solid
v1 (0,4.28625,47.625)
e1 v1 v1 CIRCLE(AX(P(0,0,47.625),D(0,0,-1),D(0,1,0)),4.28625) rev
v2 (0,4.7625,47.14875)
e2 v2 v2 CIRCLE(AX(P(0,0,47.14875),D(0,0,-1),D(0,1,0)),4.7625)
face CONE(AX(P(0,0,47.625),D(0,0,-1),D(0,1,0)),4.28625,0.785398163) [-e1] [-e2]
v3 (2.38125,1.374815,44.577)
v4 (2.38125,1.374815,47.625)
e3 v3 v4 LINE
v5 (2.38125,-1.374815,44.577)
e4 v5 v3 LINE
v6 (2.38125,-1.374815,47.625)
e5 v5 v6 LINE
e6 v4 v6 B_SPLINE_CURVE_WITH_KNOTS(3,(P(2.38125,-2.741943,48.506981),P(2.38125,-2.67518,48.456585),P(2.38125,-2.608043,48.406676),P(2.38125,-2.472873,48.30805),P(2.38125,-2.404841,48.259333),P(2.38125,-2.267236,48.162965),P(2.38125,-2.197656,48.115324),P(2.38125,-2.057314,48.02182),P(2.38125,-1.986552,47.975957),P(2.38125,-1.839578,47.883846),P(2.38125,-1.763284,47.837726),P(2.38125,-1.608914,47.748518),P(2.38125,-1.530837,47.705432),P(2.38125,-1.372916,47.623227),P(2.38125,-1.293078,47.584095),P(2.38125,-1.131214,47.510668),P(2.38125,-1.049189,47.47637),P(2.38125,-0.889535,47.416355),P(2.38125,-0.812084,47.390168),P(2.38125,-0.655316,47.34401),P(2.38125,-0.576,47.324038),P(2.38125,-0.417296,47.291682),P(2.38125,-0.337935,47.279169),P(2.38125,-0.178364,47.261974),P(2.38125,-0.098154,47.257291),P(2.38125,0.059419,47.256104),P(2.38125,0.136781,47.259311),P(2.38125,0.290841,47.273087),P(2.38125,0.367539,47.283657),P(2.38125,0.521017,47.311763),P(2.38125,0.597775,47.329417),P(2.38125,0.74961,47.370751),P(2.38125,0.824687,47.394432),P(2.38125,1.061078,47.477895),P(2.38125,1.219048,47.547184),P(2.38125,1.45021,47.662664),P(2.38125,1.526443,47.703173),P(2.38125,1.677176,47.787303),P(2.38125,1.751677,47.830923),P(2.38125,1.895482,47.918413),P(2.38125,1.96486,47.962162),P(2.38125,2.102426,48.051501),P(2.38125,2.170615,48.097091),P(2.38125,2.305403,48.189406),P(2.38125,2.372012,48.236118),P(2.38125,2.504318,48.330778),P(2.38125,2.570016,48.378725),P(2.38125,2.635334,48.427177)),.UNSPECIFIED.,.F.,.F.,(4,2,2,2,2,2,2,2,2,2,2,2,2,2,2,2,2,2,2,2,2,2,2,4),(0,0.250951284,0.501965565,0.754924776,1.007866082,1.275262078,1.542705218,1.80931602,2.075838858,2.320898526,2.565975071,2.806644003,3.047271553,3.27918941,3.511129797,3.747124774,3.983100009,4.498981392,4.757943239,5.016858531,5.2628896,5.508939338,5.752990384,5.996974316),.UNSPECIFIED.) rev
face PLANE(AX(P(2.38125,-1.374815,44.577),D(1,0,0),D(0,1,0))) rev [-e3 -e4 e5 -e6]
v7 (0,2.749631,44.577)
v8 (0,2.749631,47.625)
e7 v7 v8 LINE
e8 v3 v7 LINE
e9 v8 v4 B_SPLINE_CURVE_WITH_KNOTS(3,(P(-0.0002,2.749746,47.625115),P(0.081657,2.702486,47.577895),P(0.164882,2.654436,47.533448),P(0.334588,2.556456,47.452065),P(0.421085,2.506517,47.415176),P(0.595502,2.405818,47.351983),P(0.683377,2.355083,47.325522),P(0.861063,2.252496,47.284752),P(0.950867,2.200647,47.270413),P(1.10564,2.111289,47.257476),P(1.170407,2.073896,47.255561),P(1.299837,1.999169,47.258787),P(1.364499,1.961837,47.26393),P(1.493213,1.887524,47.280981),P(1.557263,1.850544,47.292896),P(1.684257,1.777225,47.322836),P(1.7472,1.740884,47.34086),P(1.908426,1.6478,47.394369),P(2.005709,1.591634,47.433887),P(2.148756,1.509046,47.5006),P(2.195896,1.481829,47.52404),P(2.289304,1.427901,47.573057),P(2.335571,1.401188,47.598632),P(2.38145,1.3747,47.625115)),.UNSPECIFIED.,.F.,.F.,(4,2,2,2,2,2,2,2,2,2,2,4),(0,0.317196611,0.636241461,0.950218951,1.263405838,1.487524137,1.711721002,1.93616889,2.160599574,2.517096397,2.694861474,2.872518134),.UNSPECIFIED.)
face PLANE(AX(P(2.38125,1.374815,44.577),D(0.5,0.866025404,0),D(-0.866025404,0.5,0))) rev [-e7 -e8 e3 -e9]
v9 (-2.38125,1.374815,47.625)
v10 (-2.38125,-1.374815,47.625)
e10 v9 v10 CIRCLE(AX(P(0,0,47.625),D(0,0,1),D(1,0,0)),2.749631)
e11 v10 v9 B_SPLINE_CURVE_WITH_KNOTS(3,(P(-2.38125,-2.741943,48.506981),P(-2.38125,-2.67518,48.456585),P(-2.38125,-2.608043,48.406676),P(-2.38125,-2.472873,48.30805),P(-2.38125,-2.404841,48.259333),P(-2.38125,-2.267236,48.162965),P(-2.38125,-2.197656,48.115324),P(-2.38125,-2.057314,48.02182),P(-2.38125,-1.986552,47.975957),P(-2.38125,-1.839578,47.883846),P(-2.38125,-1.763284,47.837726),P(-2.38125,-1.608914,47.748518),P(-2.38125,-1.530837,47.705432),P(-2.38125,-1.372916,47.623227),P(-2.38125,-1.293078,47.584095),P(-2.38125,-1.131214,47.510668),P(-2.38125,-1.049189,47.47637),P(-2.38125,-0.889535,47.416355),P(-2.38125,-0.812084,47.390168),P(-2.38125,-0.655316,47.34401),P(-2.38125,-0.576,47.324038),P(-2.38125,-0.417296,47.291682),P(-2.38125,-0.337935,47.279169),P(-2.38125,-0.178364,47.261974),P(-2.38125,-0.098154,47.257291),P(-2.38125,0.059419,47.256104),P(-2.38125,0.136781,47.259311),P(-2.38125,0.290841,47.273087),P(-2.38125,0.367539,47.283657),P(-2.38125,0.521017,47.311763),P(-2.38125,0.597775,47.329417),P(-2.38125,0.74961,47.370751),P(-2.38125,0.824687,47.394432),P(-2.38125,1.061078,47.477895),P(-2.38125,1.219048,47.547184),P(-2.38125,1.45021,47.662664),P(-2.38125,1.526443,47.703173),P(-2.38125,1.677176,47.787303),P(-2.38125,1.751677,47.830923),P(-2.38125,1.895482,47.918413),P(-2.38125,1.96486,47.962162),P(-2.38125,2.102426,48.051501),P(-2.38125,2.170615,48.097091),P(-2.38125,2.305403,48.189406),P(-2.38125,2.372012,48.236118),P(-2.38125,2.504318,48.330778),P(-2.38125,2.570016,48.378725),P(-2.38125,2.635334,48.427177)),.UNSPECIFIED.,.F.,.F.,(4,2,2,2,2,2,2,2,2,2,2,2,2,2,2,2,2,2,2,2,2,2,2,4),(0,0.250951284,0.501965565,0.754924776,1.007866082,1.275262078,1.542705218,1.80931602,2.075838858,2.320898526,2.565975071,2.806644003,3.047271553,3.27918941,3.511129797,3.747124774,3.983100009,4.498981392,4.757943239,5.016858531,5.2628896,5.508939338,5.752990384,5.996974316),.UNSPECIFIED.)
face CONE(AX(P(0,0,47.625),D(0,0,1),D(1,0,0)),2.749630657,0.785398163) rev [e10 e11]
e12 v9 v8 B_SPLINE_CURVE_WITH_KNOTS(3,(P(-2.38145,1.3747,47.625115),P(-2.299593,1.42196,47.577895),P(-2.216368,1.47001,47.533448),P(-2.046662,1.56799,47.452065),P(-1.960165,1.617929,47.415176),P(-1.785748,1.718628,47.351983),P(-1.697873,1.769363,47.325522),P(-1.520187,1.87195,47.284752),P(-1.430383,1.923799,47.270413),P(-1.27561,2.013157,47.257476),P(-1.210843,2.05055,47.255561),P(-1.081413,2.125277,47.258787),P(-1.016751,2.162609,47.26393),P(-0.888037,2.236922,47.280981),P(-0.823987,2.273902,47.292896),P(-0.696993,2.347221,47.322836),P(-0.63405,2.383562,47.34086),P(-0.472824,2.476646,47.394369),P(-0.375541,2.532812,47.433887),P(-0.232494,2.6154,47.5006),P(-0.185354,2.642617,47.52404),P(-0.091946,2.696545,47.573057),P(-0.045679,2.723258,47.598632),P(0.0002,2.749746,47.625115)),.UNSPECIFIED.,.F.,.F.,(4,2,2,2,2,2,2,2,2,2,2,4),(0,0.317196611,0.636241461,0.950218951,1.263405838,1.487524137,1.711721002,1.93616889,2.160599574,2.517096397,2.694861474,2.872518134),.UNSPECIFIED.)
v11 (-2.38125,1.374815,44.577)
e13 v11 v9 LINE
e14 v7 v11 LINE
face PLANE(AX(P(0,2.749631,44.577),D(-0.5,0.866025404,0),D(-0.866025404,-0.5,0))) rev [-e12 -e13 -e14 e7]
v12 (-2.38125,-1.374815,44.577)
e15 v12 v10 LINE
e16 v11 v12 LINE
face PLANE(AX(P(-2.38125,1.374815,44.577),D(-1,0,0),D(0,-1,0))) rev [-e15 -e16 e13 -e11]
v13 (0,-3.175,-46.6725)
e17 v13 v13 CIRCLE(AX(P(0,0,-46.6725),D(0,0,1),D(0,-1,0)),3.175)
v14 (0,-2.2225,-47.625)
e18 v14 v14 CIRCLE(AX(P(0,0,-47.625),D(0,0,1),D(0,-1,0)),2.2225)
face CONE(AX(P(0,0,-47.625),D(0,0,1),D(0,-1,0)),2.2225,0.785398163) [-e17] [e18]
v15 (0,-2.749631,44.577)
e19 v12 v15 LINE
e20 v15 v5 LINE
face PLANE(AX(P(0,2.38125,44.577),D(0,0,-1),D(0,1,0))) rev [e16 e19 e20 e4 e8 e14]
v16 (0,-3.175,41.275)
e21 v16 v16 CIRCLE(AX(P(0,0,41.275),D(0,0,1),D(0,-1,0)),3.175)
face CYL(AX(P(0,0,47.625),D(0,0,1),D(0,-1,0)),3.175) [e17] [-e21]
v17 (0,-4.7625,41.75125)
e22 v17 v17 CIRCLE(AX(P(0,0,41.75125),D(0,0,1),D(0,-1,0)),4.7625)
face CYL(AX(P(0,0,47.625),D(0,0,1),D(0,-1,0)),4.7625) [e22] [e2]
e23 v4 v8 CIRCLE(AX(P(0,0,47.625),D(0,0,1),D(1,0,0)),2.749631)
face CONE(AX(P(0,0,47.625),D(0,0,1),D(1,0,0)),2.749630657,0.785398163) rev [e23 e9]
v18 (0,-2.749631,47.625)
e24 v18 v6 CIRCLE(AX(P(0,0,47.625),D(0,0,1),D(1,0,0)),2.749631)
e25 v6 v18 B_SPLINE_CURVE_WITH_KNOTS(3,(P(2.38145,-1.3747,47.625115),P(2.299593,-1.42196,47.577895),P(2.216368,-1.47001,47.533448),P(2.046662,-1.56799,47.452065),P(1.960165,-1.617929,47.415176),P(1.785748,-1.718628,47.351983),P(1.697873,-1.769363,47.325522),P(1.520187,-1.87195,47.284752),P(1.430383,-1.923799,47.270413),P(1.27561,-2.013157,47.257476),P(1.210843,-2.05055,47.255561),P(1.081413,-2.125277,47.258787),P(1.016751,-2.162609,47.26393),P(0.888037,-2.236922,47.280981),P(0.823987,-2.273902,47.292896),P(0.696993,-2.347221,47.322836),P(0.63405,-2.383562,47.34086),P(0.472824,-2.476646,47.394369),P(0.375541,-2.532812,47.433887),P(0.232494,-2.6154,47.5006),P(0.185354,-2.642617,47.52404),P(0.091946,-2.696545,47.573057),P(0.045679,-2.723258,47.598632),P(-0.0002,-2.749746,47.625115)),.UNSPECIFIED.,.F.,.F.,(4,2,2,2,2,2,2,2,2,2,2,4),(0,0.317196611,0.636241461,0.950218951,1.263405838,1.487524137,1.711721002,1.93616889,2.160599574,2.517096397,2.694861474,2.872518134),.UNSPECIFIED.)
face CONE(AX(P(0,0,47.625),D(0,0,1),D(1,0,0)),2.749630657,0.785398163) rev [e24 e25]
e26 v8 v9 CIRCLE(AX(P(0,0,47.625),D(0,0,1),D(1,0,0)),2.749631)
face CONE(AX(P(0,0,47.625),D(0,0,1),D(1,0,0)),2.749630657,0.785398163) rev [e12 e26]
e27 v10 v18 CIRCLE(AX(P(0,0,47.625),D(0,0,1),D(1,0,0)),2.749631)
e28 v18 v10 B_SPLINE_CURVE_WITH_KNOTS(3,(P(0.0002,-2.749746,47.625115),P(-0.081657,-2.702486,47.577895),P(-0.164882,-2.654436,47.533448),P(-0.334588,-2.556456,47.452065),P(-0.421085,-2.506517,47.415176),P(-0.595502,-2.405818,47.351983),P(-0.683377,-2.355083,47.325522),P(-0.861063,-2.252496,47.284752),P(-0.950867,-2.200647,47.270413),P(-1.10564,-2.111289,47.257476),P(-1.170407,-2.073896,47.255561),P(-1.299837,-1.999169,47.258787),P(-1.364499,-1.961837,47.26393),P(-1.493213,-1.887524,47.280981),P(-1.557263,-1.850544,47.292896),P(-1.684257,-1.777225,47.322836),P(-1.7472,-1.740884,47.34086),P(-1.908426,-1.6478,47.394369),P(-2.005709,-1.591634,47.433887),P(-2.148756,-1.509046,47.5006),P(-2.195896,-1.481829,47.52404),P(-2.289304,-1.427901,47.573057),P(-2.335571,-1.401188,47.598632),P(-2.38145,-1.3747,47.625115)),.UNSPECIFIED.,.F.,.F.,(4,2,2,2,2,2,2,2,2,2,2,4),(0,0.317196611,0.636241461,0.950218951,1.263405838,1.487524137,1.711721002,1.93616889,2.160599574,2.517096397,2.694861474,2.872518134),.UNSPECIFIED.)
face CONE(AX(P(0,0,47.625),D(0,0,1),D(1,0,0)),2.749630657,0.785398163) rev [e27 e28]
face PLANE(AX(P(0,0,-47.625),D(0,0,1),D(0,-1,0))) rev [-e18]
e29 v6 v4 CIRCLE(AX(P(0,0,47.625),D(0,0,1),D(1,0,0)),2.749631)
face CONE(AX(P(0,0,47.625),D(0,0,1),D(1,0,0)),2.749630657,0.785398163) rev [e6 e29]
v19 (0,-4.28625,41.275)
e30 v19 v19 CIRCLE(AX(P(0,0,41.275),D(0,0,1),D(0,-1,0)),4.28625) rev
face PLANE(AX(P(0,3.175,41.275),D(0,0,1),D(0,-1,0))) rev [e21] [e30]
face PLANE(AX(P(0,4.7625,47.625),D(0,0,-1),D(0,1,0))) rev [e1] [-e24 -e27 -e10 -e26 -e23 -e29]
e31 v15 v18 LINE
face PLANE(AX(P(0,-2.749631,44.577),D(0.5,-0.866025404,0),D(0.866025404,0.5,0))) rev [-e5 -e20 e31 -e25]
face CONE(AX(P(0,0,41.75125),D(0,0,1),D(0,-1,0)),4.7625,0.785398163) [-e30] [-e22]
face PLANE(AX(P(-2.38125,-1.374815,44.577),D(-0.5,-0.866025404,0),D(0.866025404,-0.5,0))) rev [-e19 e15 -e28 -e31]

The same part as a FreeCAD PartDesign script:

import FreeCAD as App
import Part
import Sketcher

V = App.Vector
Q = App.Units.Quantity


def edges_at(feature, points):
    """Names of the edges that pass closest to the given points."""
    edges = feature.Shape.Edges
    near = lambda p: min(range(len(edges)), key=lambda i: edges[i].distToShape(Part.Vertex(*p))[0])
    return sorted({f"Edge{near(p) + 1}" for p in points})


def faces_at(feature, points):
    """Names of the faces that lie closest to the given points."""
    faces = feature.Shape.Faces
    near = lambda p: min(range(len(faces)), key=lambda i: faces[i].distToShape(Part.Vertex(*p))[0])
    return sorted({f"Face{near(p) + 1}" for p in points})

doc = App.newDocument("Part")
body = doc.addObject("PartDesign::Body", "Body")

# Sketch on YZ plane
sketch1 = body.newObject("Sketcher::SketchObject", "Sketch")
sketch1.AttachmentSupport = (doc.getObject("YZ_Plane"), [""])
sketch1.MapMode = "FlatFace"
sketch1.addGeometry([
    Part.LineSegment(V(4.8, 47.6, 0), V(2.4, 47.6, 0)),  # 0
    Part.LineSegment(V(2.4, 47.6, 0), V(2.4, 44.6, 0)),  # 1
    Part.LineSegment(V(2.4, 44.6, 0), V(0, 44.6, 0)),  # 2
    Part.LineSegment(V(0, 44.6, 0), V(0, -47.6, 0)),  # 3
    Part.LineSegment(V(0, -47.6, 0), V(2.2, -47.6, 0)),  # 4
    Part.LineSegment(V(2.2, -47.6, 0), V(3.2, -46.7, 0)),  # 5
    Part.LineSegment(V(3.2, -46.7, 0), V(3.2, 41.3, 0)),  # 6
    Part.LineSegment(V(3.2, 41.3, 0), V(4.8, 41.3, 0)),  # 7
    Part.LineSegment(V(4.8, 41.3, 0), V(4.8, 47.6, 0)),  # 8
], False)
sketch1.addConstraint([
    Sketcher.Constraint("Coincident", 0, 2, 1, 1),
    Sketcher.Constraint("Coincident", 1, 2, 2, 1),
    Sketcher.Constraint("Coincident", 2, 2, 3, 1),
    Sketcher.Constraint("Coincident", 3, 2, 4, 1),
    Sketcher.Constraint("Coincident", 4, 2, 5, 1),
    Sketcher.Constraint("Coincident", 5, 2, 6, 1),
    Sketcher.Constraint("Coincident", 6, 2, 7, 1),
    Sketcher.Constraint("Coincident", 7, 2, 8, 1),
    Sketcher.Constraint("Coincident", 8, 2, 0, 1),
    Sketcher.Constraint("Horizontal", 0),
    Sketcher.Constraint("Vertical", 1),
    Sketcher.Constraint("Horizontal", 2),
    Sketcher.Constraint("Vertical", 3),
    Sketcher.Constraint("Horizontal", 4),
    Sketcher.Constraint("Vertical", 6),
    Sketcher.Constraint("Horizontal", 7),
    Sketcher.Constraint("Vertical", 8),
    Sketcher.Constraint("PointOnObject", 2, 2, -2),
    Sketcher.Constraint("Equal", 0, 2),
    Sketcher.Constraint("Angle", 5, Q("45 deg")),
    Sketcher.Constraint("DistanceY", 1, 2, 1, 1, Q("0.12 in")),
    Sketcher.Constraint("DistanceY", 3, 2, 3, 1, Q("3.63 in")),
    Sketcher.Constraint("DistanceY", 8, 1, 8, 2, Q("0.25 in")),
    Sketcher.Constraint("DistanceX", 0, 2, 0, 1, Q("0.09375 in")),
    Sketcher.Constraint("DistanceX", 7, 1, 7, 2, Q("0.0625 in")),
    Sketcher.Constraint("DistanceX", 4, 1, 4, 2, Q("0.0875 in")),
    Sketcher.Constraint("DistanceY", -1, 1, 0, 2, Q("1.875 in")),
])
revolution = body.newObject("PartDesign::Revolution", "Revolution")
revolution.Profile = sketch1
revolution.ReferenceAxis = (sketch1, ["V_Axis"])
revolution.Angle = 360

# Sketch on XY plane
sketch2 = body.newObject("Sketcher::SketchObject", "Sketch001")
sketch2.AttachmentSupport = (doc.getObject("XY_Plane"), [""])
sketch2.MapMode = "FlatFace"
sketch2.AttachmentOffset = App.Placement(V(0, 0, 1.875 * 25.4), App.Rotation())
sketch2.addGeometry([
    Part.LineSegment(V(0, 2.7, 0), V(-2.4, 1.4, 0)),  # 0
    Part.LineSegment(V(-2.4, 1.4, 0), V(-2.4, -1.4, 0)),  # 1
    Part.LineSegment(V(-2.4, -1.4, 0), V(0, -2.7, 0)),  # 2
    Part.LineSegment(V(0, -2.7, 0), V(2.4, -1.4, 0)),  # 3
    Part.LineSegment(V(2.4, -1.4, 0), V(2.4, 1.4, 0)),  # 4
    Part.LineSegment(V(2.4, 1.4, 0), V(0, 2.7, 0)),  # 5
], False)
sketch2.addConstraint([
    Sketcher.Constraint("Coincident", 0, 2, 1, 1),
    Sketcher.Constraint("Coincident", 1, 2, 2, 1),
    Sketcher.Constraint("Coincident", 2, 2, 3, 1),
    Sketcher.Constraint("Coincident", 3, 2, 4, 1),
    Sketcher.Constraint("Coincident", 4, 2, 5, 1),
    Sketcher.Constraint("Coincident", 5, 2, 0, 1),
    Sketcher.Constraint("Vertical", 1),
    Sketcher.Constraint("Vertical", 4),
    Sketcher.Constraint("Symmetric", 0, 2, 3, 2, -1, 1),
    Sketcher.Constraint("Symmetric", 2, 2, 5, 2, -1, 1),
    Sketcher.Constraint("PointOnObject", 2, 2, -2),
    Sketcher.Constraint("Parallel", 2, 5),
    Sketcher.Constraint("Horizontal", 1, 2, 3, 2),
    Sketcher.Constraint("Angle", 0, Q("-150 deg")),
    Sketcher.Constraint("DistanceX", 0, 2, -1, 1, Q("0.09375 in")),
    Sketcher.Constraint("DistanceY", 1, 2, 1, 1, 2.749631),
])
pocket1 = body.newObject("PartDesign::Pocket", "Pocket")
pocket1.Profile = sketch2
pocket1.Length = Q("0.12 in")
body2 = doc.addObject("PartDesign::Body", "Body001")

# Sketch on XY plane
sketch3 = body2.newObject("Sketcher::SketchObject", "Sketch002")
sketch3.AttachmentSupport = (doc.getObject("XY_Plane001"), [""])
sketch3.MapMode = "FlatFace"
sketch3.AttachmentOffset = App.Placement(V(0, 0, 1.875 * 25.4), App.Rotation())
sketch3.addGeometry(Part.Circle(V(0, 0, 0), V(0, 0, 1), 2.7), False)
sketch3.addConstraint([
    Sketcher.Constraint("Coincident", 0, 3, -1, 1),
    Sketcher.Constraint("Diameter", 0, 5.499261),
])
pad1 = body2.newObject("PartDesign::Pad", "Pad")
pad1.Profile = sketch3
pad1.Length = Q("0.12 in")
pad1.Reversed = True
doc.recompute()

datumplane = body2.newObject("PartDesign::Plane", "DatumPlane")
datumplane.AttachmentSupport = (doc.getObject("XY_Plane001"), [""])
datumplane.MapMode = "FlatFace"
datumplane.AttachmentOffset = App.Placement(V(0, 0, 1.875 * 25.4), App.Rotation())
draft = body2.newObject("PartDesign::Draft", "Draft")
draft.Base = (pad1, faces_at(pad1, [(-2.75, 0, 46.101)]))
draft.NeutralPlane = (datumplane, [""])
draft.Angle = 45
draft.Reversed = True
doc.recompute()

boolean = body.newObject("PartDesign::Boolean", "Boolean")
boolean.Type = "Cut"
boolean.addObjects([body2])
doc.recompute()

chamfer = body.newObject("PartDesign::Chamfer", "Chamfer")
chamfer.Base = (boolean, edges_at(boolean, [(0, -4.763, 47.625), (0, -4.763, 41.275)]))
chamfer.Size = 0.47625

doc.recompute()
